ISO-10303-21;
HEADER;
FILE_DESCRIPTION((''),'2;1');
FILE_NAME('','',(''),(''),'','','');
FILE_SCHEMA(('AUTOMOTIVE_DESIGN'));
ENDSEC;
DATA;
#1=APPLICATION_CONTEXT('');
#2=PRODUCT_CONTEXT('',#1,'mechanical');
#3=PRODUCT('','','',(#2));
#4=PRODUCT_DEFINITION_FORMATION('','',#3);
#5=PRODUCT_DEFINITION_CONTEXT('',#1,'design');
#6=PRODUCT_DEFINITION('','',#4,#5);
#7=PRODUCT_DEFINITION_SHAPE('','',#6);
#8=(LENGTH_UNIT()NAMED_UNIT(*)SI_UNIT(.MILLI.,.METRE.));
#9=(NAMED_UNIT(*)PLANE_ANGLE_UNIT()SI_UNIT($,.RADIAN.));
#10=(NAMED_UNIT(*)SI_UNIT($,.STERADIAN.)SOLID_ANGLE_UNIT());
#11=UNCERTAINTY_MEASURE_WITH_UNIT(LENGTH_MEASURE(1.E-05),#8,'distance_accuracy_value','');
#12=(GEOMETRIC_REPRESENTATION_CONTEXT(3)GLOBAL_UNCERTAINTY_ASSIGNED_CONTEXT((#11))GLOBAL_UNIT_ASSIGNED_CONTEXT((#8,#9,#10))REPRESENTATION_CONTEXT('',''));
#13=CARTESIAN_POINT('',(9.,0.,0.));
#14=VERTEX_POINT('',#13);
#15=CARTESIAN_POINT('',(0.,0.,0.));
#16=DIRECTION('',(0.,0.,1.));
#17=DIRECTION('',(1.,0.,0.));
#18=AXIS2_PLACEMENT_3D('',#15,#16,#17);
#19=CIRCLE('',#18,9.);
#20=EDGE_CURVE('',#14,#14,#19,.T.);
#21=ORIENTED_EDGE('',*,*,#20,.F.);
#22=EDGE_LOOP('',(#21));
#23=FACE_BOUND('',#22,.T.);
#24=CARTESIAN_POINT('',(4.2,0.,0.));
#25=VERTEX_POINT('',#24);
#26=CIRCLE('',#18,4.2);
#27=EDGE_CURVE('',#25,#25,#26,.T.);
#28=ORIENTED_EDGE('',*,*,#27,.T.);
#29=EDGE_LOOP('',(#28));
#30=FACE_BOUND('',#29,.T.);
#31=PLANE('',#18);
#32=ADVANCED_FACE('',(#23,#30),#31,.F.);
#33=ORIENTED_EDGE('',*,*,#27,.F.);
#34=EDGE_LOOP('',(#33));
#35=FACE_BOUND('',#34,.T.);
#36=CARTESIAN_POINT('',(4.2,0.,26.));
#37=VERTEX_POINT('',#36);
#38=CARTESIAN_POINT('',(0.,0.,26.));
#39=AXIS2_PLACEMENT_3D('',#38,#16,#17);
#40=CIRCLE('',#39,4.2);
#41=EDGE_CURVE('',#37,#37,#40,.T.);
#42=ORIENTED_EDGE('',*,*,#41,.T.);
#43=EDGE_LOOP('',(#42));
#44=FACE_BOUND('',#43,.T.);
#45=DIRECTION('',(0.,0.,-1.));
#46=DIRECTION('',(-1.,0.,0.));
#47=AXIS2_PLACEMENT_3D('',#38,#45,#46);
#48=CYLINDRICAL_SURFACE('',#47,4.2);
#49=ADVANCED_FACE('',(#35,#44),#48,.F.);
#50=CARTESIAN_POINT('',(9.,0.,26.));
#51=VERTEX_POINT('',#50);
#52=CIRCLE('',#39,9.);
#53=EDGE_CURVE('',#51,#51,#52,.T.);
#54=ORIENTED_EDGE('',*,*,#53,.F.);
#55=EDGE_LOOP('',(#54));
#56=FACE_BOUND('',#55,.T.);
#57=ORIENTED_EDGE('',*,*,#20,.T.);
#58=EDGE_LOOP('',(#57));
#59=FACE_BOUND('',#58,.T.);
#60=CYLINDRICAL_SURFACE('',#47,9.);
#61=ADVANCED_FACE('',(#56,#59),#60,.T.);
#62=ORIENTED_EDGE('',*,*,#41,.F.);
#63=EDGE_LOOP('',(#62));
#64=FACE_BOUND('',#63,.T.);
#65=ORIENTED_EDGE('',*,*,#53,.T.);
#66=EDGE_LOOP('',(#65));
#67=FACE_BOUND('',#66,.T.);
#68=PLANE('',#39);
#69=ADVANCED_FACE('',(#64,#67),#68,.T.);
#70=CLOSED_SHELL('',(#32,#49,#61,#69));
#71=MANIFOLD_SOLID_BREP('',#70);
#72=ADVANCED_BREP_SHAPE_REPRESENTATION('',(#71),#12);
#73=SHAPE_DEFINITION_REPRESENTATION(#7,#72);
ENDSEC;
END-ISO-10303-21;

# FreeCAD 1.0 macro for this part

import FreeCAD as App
import Part
import Sketcher
from FreeCAD import Vector

doc = App.newDocument("Part")
body = doc.addObject("PartDesign::Body", "Body")

# Sketch on XY plane
sketch1 = doc.addObject("Sketcher::SketchObject", "Sketch")
body.addObject(sketch1)
sketch1.AttachmentSupport = (doc.XY_Plane, [""])
sketch1.MapMode = "FlatFace"
sketch1.addGeometry(Part.Circle(Vector(0, 0, 0), Vector(0, 0, 1), 9), False)
sketch1.addGeometry(Part.Circle(Vector(0, 0, 0), Vector(0, 0, 1), 4.2), False)
sketch1.addConstraint(Sketcher.Constraint("Coincident", 0, 3, -1, 1))
sketch1.addConstraint(Sketcher.Constraint("Coincident", 1, 3, -1, 1))
sketch1.addConstraint(Sketcher.Constraint("Diameter", 0, 18.0))
sketch1.addConstraint(Sketcher.Constraint("Diameter", 1, 8.4))
pad1 = doc.addObject("PartDesign::Pad", "Pad")
body.addObject(pad1)
pad1.Profile = sketch1
pad1.Length = 26

doc.recompute()
